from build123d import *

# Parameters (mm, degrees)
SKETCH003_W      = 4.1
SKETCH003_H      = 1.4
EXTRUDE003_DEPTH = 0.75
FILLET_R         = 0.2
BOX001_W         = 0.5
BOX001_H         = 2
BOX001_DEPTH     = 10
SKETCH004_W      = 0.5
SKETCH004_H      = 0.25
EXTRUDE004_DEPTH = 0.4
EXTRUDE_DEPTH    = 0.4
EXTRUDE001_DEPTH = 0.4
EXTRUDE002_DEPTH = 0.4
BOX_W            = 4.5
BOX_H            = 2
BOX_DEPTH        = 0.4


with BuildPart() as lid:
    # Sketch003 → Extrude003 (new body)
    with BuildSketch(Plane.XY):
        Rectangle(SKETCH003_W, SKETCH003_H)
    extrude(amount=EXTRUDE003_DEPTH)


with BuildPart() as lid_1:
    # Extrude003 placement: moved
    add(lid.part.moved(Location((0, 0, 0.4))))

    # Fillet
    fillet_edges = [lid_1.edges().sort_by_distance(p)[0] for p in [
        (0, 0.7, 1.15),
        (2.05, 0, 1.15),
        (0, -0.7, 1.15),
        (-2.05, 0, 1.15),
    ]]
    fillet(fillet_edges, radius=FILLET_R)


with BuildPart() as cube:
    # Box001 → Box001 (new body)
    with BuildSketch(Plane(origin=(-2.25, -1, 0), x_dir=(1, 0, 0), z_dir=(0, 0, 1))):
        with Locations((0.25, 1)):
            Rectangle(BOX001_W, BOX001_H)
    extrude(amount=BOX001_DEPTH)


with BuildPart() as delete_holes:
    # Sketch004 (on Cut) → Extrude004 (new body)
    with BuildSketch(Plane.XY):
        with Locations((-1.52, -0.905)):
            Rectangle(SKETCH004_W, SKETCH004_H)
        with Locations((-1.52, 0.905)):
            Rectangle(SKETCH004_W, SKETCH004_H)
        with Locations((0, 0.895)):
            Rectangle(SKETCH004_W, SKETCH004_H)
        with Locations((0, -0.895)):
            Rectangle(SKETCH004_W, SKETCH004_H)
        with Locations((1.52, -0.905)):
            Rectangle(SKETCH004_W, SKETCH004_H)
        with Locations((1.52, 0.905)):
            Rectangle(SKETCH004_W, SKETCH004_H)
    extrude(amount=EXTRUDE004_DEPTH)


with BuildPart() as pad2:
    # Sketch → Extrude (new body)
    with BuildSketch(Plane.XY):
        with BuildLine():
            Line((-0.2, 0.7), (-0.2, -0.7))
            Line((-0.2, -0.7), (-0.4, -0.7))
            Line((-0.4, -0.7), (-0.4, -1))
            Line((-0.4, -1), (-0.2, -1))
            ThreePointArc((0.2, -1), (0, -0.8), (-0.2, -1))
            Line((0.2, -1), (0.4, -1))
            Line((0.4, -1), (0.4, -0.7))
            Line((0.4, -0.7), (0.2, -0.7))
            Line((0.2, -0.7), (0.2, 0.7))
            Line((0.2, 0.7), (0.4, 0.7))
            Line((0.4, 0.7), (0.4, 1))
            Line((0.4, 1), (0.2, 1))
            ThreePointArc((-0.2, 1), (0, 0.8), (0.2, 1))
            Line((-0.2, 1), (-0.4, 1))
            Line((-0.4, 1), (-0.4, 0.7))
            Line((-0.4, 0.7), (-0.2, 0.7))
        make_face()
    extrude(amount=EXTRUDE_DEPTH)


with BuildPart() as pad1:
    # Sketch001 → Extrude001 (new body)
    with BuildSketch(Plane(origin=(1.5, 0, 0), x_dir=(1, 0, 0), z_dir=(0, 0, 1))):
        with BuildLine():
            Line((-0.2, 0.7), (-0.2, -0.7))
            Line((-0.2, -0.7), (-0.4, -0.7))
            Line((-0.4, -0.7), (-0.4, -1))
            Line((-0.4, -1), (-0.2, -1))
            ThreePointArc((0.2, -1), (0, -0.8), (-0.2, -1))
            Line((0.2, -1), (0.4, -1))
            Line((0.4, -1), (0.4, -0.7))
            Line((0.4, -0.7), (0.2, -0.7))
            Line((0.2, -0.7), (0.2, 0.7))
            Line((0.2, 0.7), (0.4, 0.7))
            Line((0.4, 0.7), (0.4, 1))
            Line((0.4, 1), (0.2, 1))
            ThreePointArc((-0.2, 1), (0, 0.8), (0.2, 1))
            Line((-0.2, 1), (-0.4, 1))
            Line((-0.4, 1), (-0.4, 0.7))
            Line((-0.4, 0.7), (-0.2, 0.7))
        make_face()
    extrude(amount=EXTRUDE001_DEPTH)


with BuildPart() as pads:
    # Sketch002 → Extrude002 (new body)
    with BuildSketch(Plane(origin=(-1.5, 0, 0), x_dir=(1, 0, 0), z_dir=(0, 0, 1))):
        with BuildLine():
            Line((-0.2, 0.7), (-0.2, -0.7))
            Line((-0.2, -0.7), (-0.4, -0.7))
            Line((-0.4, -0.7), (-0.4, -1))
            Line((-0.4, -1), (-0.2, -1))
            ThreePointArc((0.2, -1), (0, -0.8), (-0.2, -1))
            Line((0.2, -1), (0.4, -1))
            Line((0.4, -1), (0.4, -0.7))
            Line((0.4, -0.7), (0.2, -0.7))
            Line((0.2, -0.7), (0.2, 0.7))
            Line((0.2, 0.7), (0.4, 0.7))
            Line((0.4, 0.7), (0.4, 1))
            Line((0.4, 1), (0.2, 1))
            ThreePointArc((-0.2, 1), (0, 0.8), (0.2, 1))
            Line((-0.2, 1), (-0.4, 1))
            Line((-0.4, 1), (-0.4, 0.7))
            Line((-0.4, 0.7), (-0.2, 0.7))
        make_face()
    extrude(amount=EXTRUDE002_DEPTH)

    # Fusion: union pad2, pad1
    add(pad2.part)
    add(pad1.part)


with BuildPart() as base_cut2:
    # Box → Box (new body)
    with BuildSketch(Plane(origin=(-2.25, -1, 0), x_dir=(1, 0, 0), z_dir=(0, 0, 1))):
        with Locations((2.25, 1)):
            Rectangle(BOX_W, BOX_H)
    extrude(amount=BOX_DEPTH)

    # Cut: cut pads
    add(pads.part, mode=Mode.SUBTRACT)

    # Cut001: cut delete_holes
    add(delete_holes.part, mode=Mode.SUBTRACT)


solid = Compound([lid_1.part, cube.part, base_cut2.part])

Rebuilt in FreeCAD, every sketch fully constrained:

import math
import FreeCAD as App
import Part
import Sketcher

V = App.Vector
Q = App.Units.Quantity


def edges_at(feature, points):
    """Names of the edges that pass closest to the given points."""
    edges = feature.Shape.Edges
    near = lambda p: min(range(len(edges)), key=lambda i: edges[i].distToShape(Part.Vertex(*p))[0])
    return sorted({f"Edge{near(p) + 1}" for p in points})


def add_polygon(sketch, points):
    """Adds a closed chain of lines whose ends are joined by coincident constraints."""
    first, n = sketch.GeometryCount, len(points)
    for a, b in zip(points, points[1:] + points[:1]):
        sketch.addGeometry(Part.LineSegment(App.Vector(*a, 0), App.Vector(*b, 0)), False)
    for i in range(n):
        sketch.addConstraint(Sketcher.Constraint("Coincident", first + i, 2, first + (i + 1) % n, 1))

doc = App.newDocument("Part")
params = doc.addObject("Spreadsheet::Sheet", "Params")
for row, (alias, value) in enumerate([
    ("sketch1_width", "4.1 mm"),
    ("sketch1_height", "1.4 mm"),
    ("pad1_length", "0.75 mm"),
    ("fillet_radius", "0.2 mm"),
    ("sketch2_height", "2 mm"),
    ("sketch2_width", "0.5 mm"),
    ("pad2_length", "10 mm"),
    ("sketch3_width", "0.5 mm"),
    ("sketch3_height", "0.25 mm"),
    ("pad3_length", "0.4 mm"),
    ("sketch4_radius", "0.2 mm"),
    ("sketch4_width", "0.2 mm"),
    ("sketch4_height", "1.4 mm"),
    ("sketch4_height2", "0.3 mm"),
    ("pad4_length", "0.4 mm"),
    ("sketch5_radius", "0.2 mm"),
    ("sketch5_width", "0.2 mm"),
    ("sketch5_height", "1.4 mm"),
    ("sketch5_height2", "0.3 mm"),
    ("pad5_length", "0.4 mm"),
    ("sketch6_radius", "0.2 mm"),
    ("sketch6_width", "0.2 mm"),
    ("sketch6_height", "1.4 mm"),
    ("sketch6_height2", "0.3 mm"),
    ("pad6_length", "0.4 mm"),
    ("sketch7_height", "2 mm"),
    ("sketch7_width", "4.5 mm"),
    ("pad7_length", "0.4 mm"),
], start=1):
    params.set(f"A{row}", alias)
    params.set(f"B{row}", "=" + value)
    params.setAlias(f"B{row}", alias)

body = doc.addObject("PartDesign::Body", "Body")

sketch1 = body.newObject("Sketcher::SketchObject", "Sketch")
sketch1.AttachmentSupport = (doc.getObject("XY_Plane"), [""])
sketch1.MapMode = "FlatFace"
add_polygon(sketch1, [(-2.05, 0.7), (-2.05, -0.7), (2.05, -0.7), (2.05, 0.7)])
sketch1.addConstraint([
    Sketcher.Constraint("Vertical", 0),
    Sketcher.Constraint("Horizontal", 1),
    Sketcher.Constraint("Vertical", 2),
    Sketcher.Constraint("Horizontal", 3),
    Sketcher.Constraint("Symmetric", 0, 2, 2, 2, -1, 1),
    Sketcher.Constraint("DistanceX", 1, 1, 1, 2, Q("4.1 mm")),
    Sketcher.Constraint("DistanceY", 0, 2, 0, 1, Q("1.4 mm")),
])
sketch1.setExpression("Constraints[9]", "Params.sketch1_width")
sketch1.setExpression("Constraints[10]", "Params.sketch1_height")
pad1 = body.newObject("PartDesign::Pad", "Pad")
pad1.Profile = sketch1
pad1.setExpression("Length", "Params.pad1_length")
body2 = doc.addObject("PartDesign::Body", "Body001")
doc.recompute()

body.Placement = App.Placement(V(0, 0, 0.4), App.Rotation(V(0, 0, 1), 0))
boolean = body2.newObject("PartDesign::Boolean", "Boolean")
boolean.Type = "Fuse"
boolean.addObjects([body])
doc.recompute()

fillet = body2.newObject("PartDesign::Fillet", "Fillet")
fillet.Base = (boolean, edges_at(boolean, [
    (0, 0.7, 1.15),
    (2.05, 0, 1.15),
    (0, -0.7, 1.15),
    (-2.05, 0, 1.15),
]))
fillet.setExpression("Radius", "Params.fillet_radius")
body3 = doc.addObject("PartDesign::Body", "Body002")

sketch2 = body3.newObject("Sketcher::SketchObject", "Sketch001")
sketch2.AttachmentSupport = (doc.getObject("XY_Plane002"), [""])
sketch2.MapMode = "FlatFace"
add_polygon(sketch2, [(-2.25, 1), (-2.25, -1), (-1.75, -1), (-1.75, 1)])
sketch2.addConstraint([
    Sketcher.Constraint("Vertical", 0),
    Sketcher.Constraint("Horizontal", 1),
    Sketcher.Constraint("Vertical", 2),
    Sketcher.Constraint("Horizontal", 3),
    Sketcher.Constraint("DistanceY", 0, 2, 0, 1, Q("2 mm")),
    Sketcher.Constraint("DistanceX", 1, 1, 1, 2, Q("0.5 mm")),
    Sketcher.Constraint("DistanceY", 0, 2, -1, 1, Q("1 mm")),
    Sketcher.Constraint("DistanceX", 0, 2, -1, 1, Q("2.25 mm")),
])
sketch2.setExpression("Constraints[8]", "Params.sketch2_height")
sketch2.setExpression("Constraints[9]", "Params.sketch2_width")
pad2 = body3.newObject("PartDesign::Pad", "Pad001")
pad2.Profile = sketch2
pad2.setExpression("Length", "Params.pad2_length")
body4 = doc.addObject("PartDesign::Body", "Body003")
body4.AllowCompound = True

sketch3 = body4.newObject("Sketcher::SketchObject", "Sketch002")
sketch3.AttachmentSupport = (doc.getObject("XY_Plane003"), [""])
sketch3.MapMode = "FlatFace"
add_polygon(sketch3, [(-1.77, -0.78), (-1.77, -1.03), (-1.27, -1.03), (-1.27, -0.78)])
add_polygon(sketch3, [(-1.77, 1.03), (-1.77, 0.78), (-1.27, 0.78), (-1.27, 1.03)])
add_polygon(sketch3, [(-0.25, 1.02), (-0.25, 0.77), (0.25, 0.77), (0.25, 1.02)])
add_polygon(sketch3, [(-0.25, -0.77), (-0.25, -1.02), (0.25, -1.02), (0.25, -0.77)])
add_polygon(sketch3, [(1.27, -0.78), (1.27, -1.03), (1.77, -1.03), (1.77, -0.78)])
add_polygon(sketch3, [(1.27, 1.03), (1.27, 0.78), (1.77, 0.78), (1.77, 1.03)])
sketch3.addConstraint([
    Sketcher.Constraint("Vertical", 0),
    Sketcher.Constraint("Horizontal", 1),
    Sketcher.Constraint("Vertical", 2),
    Sketcher.Constraint("Horizontal", 3),
    Sketcher.Constraint("Vertical", 4),
    Sketcher.Constraint("Horizontal", 5),
    Sketcher.Constraint("Vertical", 6),
    Sketcher.Constraint("Horizontal", 7),
    Sketcher.Constraint("Vertical", 8),
    Sketcher.Constraint("Horizontal", 9),
    Sketcher.Constraint("Vertical", 10),
    Sketcher.Constraint("Horizontal", 11),
    Sketcher.Constraint("Vertical", 12),
    Sketcher.Constraint("Horizontal", 13),
    Sketcher.Constraint("Vertical", 14),
    Sketcher.Constraint("Horizontal", 15),
    Sketcher.Constraint("Vertical", 16),
    Sketcher.Constraint("Horizontal", 17),
    Sketcher.Constraint("Vertical", 18),
    Sketcher.Constraint("Horizontal", 19),
    Sketcher.Constraint("Vertical", 20),
    Sketcher.Constraint("Horizontal", 21),
    Sketcher.Constraint("Vertical", 22),
    Sketcher.Constraint("Horizontal", 23),
    Sketcher.Constraint("Symmetric", 10, 2, 12, 2, -1, 1),
    Sketcher.Constraint("Symmetric", 8, 2, 14, 2, -1, 1),
    Sketcher.Constraint("Symmetric", 6, 2, 16, 2, -1, 1),
    Sketcher.Constraint("Symmetric", 4, 2, 18, 2, -1, 1),
    Sketcher.Constraint("Symmetric", 2, 2, 20, 2, -1, 1),
    Sketcher.Constraint("Symmetric", 0, 2, 22, 2, -1, 1),
    Sketcher.Constraint("Symmetric", 1, 2, 16, 2, -2),
    Sketcher.Constraint("Symmetric", 3, 2, 18, 2, -2),
    Sketcher.Constraint("Vertical", 11, 2, 12, 2),
    Sketcher.Constraint("Equal", 7, 9),
    Sketcher.Constraint("Equal", 6, 8),
    Sketcher.Constraint("DistanceX", 1, 1, 1, 2, Q("0.5 mm")),
    Sketcher.Constraint("DistanceY", 0, 2, 0, 1, Q("0.25 mm")),
    Sketcher.Constraint("DistanceY", 16, 2, 9, 2, Q("1.8 mm")),
    Sketcher.Constraint("DistanceX", 0, 2, -1, 1, Q("1.77 mm")),
    Sketcher.Constraint("DistanceY", 0, 2, -1, 1, Q("1.03 mm")),
])
sketch3.setExpression("Constraints[59]", "Params.sketch3_width")
sketch3.setExpression("Constraints[60]", "Params.sketch3_height")
pad3 = body4.newObject("PartDesign::Pad", "Pad002")
pad3.Profile = sketch3
pad3.setExpression("Length", "Params.pad3_length")
body5 = doc.addObject("PartDesign::Body", "Body004")

sketch4 = body5.newObject("Sketcher::SketchObject", "Sketch003")
sketch4.AttachmentSupport = (doc.getObject("XY_Plane004"), [""])
sketch4.MapMode = "FlatFace"
sketch4.addGeometry([
    Part.LineSegment(V(-0.2, 0.7, 0), V(-0.2, -0.7, 0)),
    Part.LineSegment(V(-0.2, -0.7, 0), V(-0.4, -0.7, 0)),
    Part.LineSegment(V(-0.4, -0.7, 0), V(-0.4, -1, 0)),
    Part.LineSegment(V(-0.4, -1, 0), V(-0.2, -1, 0)),
    Part.ArcOfCircle(Part.Circle(V(0, -1, 0), V(0, 0, 1), 0.2), math.radians(0), math.radians(180)),
    Part.LineSegment(V(0.2, -1, 0), V(0.4, -1, 0)),
    Part.LineSegment(V(0.4, -1, 0), V(0.4, -0.7, 0)),
    Part.LineSegment(V(0.4, -0.7, 0), V(0.2, -0.7, 0)),
    Part.LineSegment(V(0.2, -0.7, 0), V(0.2, 0.7, 0)),
    Part.LineSegment(V(0.2, 0.7, 0), V(0.4, 0.7, 0)),
    Part.LineSegment(V(0.4, 0.7, 0), V(0.4, 1, 0)),
    Part.LineSegment(V(0.4, 1, 0), V(0.2, 1, 0)),
    Part.ArcOfCircle(Part.Circle(V(0, 1, 0), V(0, 0, 1), 0.2), math.radians(180), math.radians(360)),
    Part.LineSegment(V(-0.2, 1, 0), V(-0.4, 1, 0)),
    Part.LineSegment(V(-0.4, 1, 0), V(-0.4, 0.7, 0)),
    Part.LineSegment(V(-0.4, 0.7, 0), V(-0.2, 0.7, 0)),
], False)
sketch4.addConstraint([
    Sketcher.Constraint("Coincident", 0, 2, 1, 1),
    Sketcher.Constraint("Coincident", 1, 2, 2, 1),
    Sketcher.Constraint("Coincident", 2, 2, 3, 1),
    Sketcher.Constraint("Coincident", 3, 2, 4, 2),
    Sketcher.Constraint("Coincident", 4, 1, 5, 1),
    Sketcher.Constraint("Coincident", 5, 2, 6, 1),
    Sketcher.Constraint("Coincident", 6, 2, 7, 1),
    Sketcher.Constraint("Coincident", 7, 2, 8, 1),
    Sketcher.Constraint("Coincident", 8, 2, 9, 1),
    Sketcher.Constraint("Coincident", 9, 2, 10, 1),
    Sketcher.Constraint("Coincident", 10, 2, 11, 1),
    Sketcher.Constraint("Coincident", 11, 2, 12, 2),
    Sketcher.Constraint("Coincident", 12, 1, 13, 1),
    Sketcher.Constraint("Coincident", 13, 2, 14, 1),
    Sketcher.Constraint("Coincident", 14, 2, 15, 1),
    Sketcher.Constraint("Coincident", 15, 2, 0, 1),
    Sketcher.Constraint("Vertical", 0),
    Sketcher.Constraint("Horizontal", 1),
    Sketcher.Constraint("Vertical", 2),
    Sketcher.Constraint("Horizontal", 3),
    Sketcher.Constraint("Horizontal", 5),
    Sketcher.Constraint("Vertical", 6),
    Sketcher.Constraint("Horizontal", 7),
    Sketcher.Constraint("Vertical", 8),
    Sketcher.Constraint("Horizontal", 9),
    Sketcher.Constraint("Vertical", 10),
    Sketcher.Constraint("Horizontal", 11),
    Sketcher.Constraint("Horizontal", 13),
    Sketcher.Constraint("Vertical", 14),
    Sketcher.Constraint("Horizontal", 15),
    Sketcher.Constraint("Equal", 4, 12),
    Sketcher.Constraint("Symmetric", 4, 3, 12, 3, -1, 1),
    Sketcher.Constraint("Symmetric", 0, 2, 8, 2, -1, 1),
    Sketcher.Constraint("Symmetric", 2, 2, 10, 2, -1, 1),
    Sketcher.Constraint("Symmetric", 5, 2, 13, 2, -1, 1),
    Sketcher.Constraint("Symmetric", 3, 2, 4, 1, -2),
    Sketcher.Constraint("Symmetric", 1, 2, 6, 2, -2),
    Sketcher.Constraint("Horizontal", 4, 3, 2, 2),
    Sketcher.Constraint("Horizontal", 9, 2, 14, 2),
    Sketcher.Constraint("Vertical", 0, 2, 3, 2),
    Sketcher.Constraint("Radius", 4, Q("0.2 mm")),
    Sketcher.Constraint("DistanceX", 1, 2, 1, 1, Q("0.2 mm")),
    Sketcher.Constraint("DistanceY", 0, 2, 0, 1, Q("1.4 mm")),
    Sketcher.Constraint("DistanceY", 2, 2, 2, 1, Q("0.3 mm")),
])
sketch4.setExpression("Constraints[40]", "Params.sketch4_radius")
sketch4.setExpression("Constraints[41]", "Params.sketch4_width")
sketch4.setExpression("Constraints[42]", "Params.sketch4_height")
sketch4.setExpression("Constraints[43]", "Params.sketch4_height2")
pad4 = body5.newObject("PartDesign::Pad", "Pad003")
pad4.Profile = sketch4
pad4.setExpression("Length", "Params.pad4_length")
body6 = doc.addObject("PartDesign::Body", "Body005")

sketch5 = body6.newObject("Sketcher::SketchObject", "Sketch004")
sketch5.AttachmentSupport = (doc.getObject("XY_Plane005"), [""])
sketch5.MapMode = "FlatFace"
sketch5.addGeometry([
    Part.LineSegment(V(1.3, 0.7, 0), V(1.3, -0.7, 0)),
    Part.LineSegment(V(1.3, -0.7, 0), V(1.1, -0.7, 0)),
    Part.LineSegment(V(1.1, -0.7, 0), V(1.1, -1, 0)),
    Part.LineSegment(V(1.1, -1, 0), V(1.3, -1, 0)),
    Part.ArcOfCircle(Part.Circle(V(1.5, -1, 0), V(0, 0, 1), 0.2), math.radians(0), math.radians(180)),
    Part.LineSegment(V(1.7, -1, 0), V(1.9, -1, 0)),
    Part.LineSegment(V(1.9, -1, 0), V(1.9, -0.7, 0)),
    Part.LineSegment(V(1.9, -0.7, 0), V(1.7, -0.7, 0)),
    Part.LineSegment(V(1.7, -0.7, 0), V(1.7, 0.7, 0)),
    Part.LineSegment(V(1.7, 0.7, 0), V(1.9, 0.7, 0)),
    Part.LineSegment(V(1.9, 0.7, 0), V(1.9, 1, 0)),
    Part.LineSegment(V(1.9, 1, 0), V(1.7, 1, 0)),
    Part.ArcOfCircle(Part.Circle(V(1.5, 1, 0), V(0, 0, 1), 0.2), math.radians(180), math.radians(360)),
    Part.LineSegment(V(1.3, 1, 0), V(1.1, 1, 0)),
    Part.LineSegment(V(1.1, 1, 0), V(1.1, 0.7, 0)),
    Part.LineSegment(V(1.1, 0.7, 0), V(1.3, 0.7, 0)),
], False)
sketch5.addConstraint([
    Sketcher.Constraint("Coincident", 0, 2, 1, 1),
    Sketcher.Constraint("Coincident", 1, 2, 2, 1),
    Sketcher.Constraint("Coincident", 2, 2, 3, 1),
    Sketcher.Constraint("Coincident", 3, 2, 4, 2),
    Sketcher.Constraint("Coincident", 4, 1, 5, 1),
    Sketcher.Constraint("Coincident", 5, 2, 6, 1),
    Sketcher.Constraint("Coincident", 6, 2, 7, 1),
    Sketcher.Constraint("Coincident", 7, 2, 8, 1),
    Sketcher.Constraint("Coincident", 8, 2, 9, 1),
    Sketcher.Constraint("Coincident", 9, 2, 10, 1),
    Sketcher.Constraint("Coincident", 10, 2, 11, 1),
    Sketcher.Constraint("Coincident", 11, 2, 12, 2),
    Sketcher.Constraint("Coincident", 12, 1, 13, 1),
    Sketcher.Constraint("Coincident", 13, 2, 14, 1),
    Sketcher.Constraint("Coincident", 14, 2, 15, 1),
    Sketcher.Constraint("Coincident", 15, 2, 0, 1),
    Sketcher.Constraint("Vertical", 0),
    Sketcher.Constraint("Horizontal", 1),
    Sketcher.Constraint("Vertical", 2),
    Sketcher.Constraint("Horizontal", 3),
    Sketcher.Constraint("Horizontal", 5),
    Sketcher.Constraint("Vertical", 6),
    Sketcher.Constraint("Horizontal", 7),
    Sketcher.Constraint("Vertical", 8),
    Sketcher.Constraint("Horizontal", 9),
    Sketcher.Constraint("Vertical", 10),
    Sketcher.Constraint("Horizontal", 11),
    Sketcher.Constraint("Horizontal", 13),
    Sketcher.Constraint("Vertical", 14),
    Sketcher.Constraint("Horizontal", 15),
    Sketcher.Constraint("Equal", 4, 12),
    Sketcher.Constraint("Symmetric", 4, 3, 12, 3, -1),
    Sketcher.Constraint("Symmetric", 6, 2, 9, 2, -1),
    Sketcher.Constraint("Symmetric", 2, 2, 13, 2, -1),
    Sketcher.Constraint("Horizontal", 4, 3, 2, 2),
    Sketcher.Constraint("Horizontal", 3, 2, 4, 1),
    Sketcher.Constraint("Horizontal", 1, 2, 6, 2),
    Sketcher.Constraint("Horizontal", 12, 3, 10, 2),
    Sketcher.Constraint("Horizontal", 9, 2, 14, 2),
    Sketcher.Constraint("Vertical", 0, 2, 3, 2),
    Sketcher.Constraint("Vertical", 4, 1, 7, 2),
    Sketcher.Constraint("Equal", 3, 5),
    Sketcher.Constraint("Radius", 4, Q("0.2 mm")),
    Sketcher.Constraint("DistanceX", 1, 2, 1, 1, Q("0.2 mm")),
    Sketcher.Constraint("DistanceY", 0, 2, 0, 1, Q("1.4 mm")),
    Sketcher.Constraint("DistanceY", 2, 2, 2, 1, Q("0.3 mm")),
    Sketcher.Constraint("DistanceX", -1, 1, 4, 3, Q("1.5 mm")),
])
sketch5.setExpression("Constraints[42]", "Params.sketch5_radius")
sketch5.setExpression("Constraints[43]", "Params.sketch5_width")
sketch5.setExpression("Constraints[44]", "Params.sketch5_height")
sketch5.setExpression("Constraints[45]", "Params.sketch5_height2")
pad5 = body6.newObject("PartDesign::Pad", "Pad004")
pad5.Profile = sketch5
pad5.setExpression("Length", "Params.pad5_length")
body7 = doc.addObject("PartDesign::Body", "Body006")
body7.AllowCompound = True

sketch6 = body7.newObject("Sketcher::SketchObject", "Sketch005")
sketch6.AttachmentSupport = (doc.getObject("XY_Plane006"), [""])
sketch6.MapMode = "FlatFace"
sketch6.addGeometry([
    Part.LineSegment(V(-1.7, 0.7, 0), V(-1.7, -0.7, 0)),
    Part.LineSegment(V(-1.7, -0.7, 0), V(-1.9, -0.7, 0)),
    Part.LineSegment(V(-1.9, -0.7, 0), V(-1.9, -1, 0)),
    Part.LineSegment(V(-1.9, -1, 0), V(-1.7, -1, 0)),
    Part.ArcOfCircle(Part.Circle(V(-1.5, -1, 0), V(0, 0, 1), 0.2), math.radians(0), math.radians(180)),
    Part.LineSegment(V(-1.3, -1, 0), V(-1.1, -1, 0)),
    Part.LineSegment(V(-1.1, -1, 0), V(-1.1, -0.7, 0)),
    Part.LineSegment(V(-1.1, -0.7, 0), V(-1.3, -0.7, 0)),
    Part.LineSegment(V(-1.3, -0.7, 0), V(-1.3, 0.7, 0)),
    Part.LineSegment(V(-1.3, 0.7, 0), V(-1.1, 0.7, 0)),
    Part.LineSegment(V(-1.1, 0.7, 0), V(-1.1, 1, 0)),
    Part.LineSegment(V(-1.1, 1, 0), V(-1.3, 1, 0)),
    Part.ArcOfCircle(Part.Circle(V(-1.5, 1, 0), V(0, 0, 1), 0.2), math.radians(180), math.radians(360)),
    Part.LineSegment(V(-1.7, 1, 0), V(-1.9, 1, 0)),
    Part.LineSegment(V(-1.9, 1, 0), V(-1.9, 0.7, 0)),
    Part.LineSegment(V(-1.9, 0.7, 0), V(-1.7, 0.7, 0)),
], False)
sketch6.addConstraint([
    Sketcher.Constraint("Coincident", 0, 2, 1, 1),
    Sketcher.Constraint("Coincident", 1, 2, 2, 1),
    Sketcher.Constraint("Coincident", 2, 2, 3, 1),
    Sketcher.Constraint("Coincident", 3, 2, 4, 2),
    Sketcher.Constraint("Coincident", 4, 1, 5, 1),
    Sketcher.Constraint("Coincident", 5, 2, 6, 1),
    Sketcher.Constraint("Coincident", 6, 2, 7, 1),
    Sketcher.Constraint("Coincident", 7, 2, 8, 1),
    Sketcher.Constraint("Coincident", 8, 2, 9, 1),
    Sketcher.Constraint("Coincident", 9, 2, 10, 1),
    Sketcher.Constraint("Coincident", 10, 2, 11, 1),
    Sketcher.Constraint("Coincident", 11, 2, 12, 2),
    Sketcher.Constraint("Coincident", 12, 1, 13, 1),
    Sketcher.Constraint("Coincident", 13, 2, 14, 1),
    Sketcher.Constraint("Coincident", 14, 2, 15, 1),
    Sketcher.Constraint("Coincident", 15, 2, 0, 1),
    Sketcher.Constraint("Vertical", 0),
    Sketcher.Constraint("Horizontal", 1),
    Sketcher.Constraint("Vertical", 2),
    Sketcher.Constraint("Horizontal", 3),
    Sketcher.Constraint("Horizontal", 5),
    Sketcher.Constraint("Vertical", 6),
    Sketcher.Constraint("Horizontal", 7),
    Sketcher.Constraint("Vertical", 8),
    Sketcher.Constraint("Horizontal", 9),
    Sketcher.Constraint("Vertical", 10),
    Sketcher.Constraint("Horizontal", 11),
    Sketcher.Constraint("Horizontal", 13),
    Sketcher.Constraint("Vertical", 14),
    Sketcher.Constraint("Horizontal", 15),
    Sketcher.Constraint("Equal", 4, 12),
    Sketcher.Constraint("Symmetric", 4, 3, 12, 3, -1),
    Sketcher.Constraint("Symmetric", 6, 2, 9, 2, -1),
    Sketcher.Constraint("Symmetric", 2, 2, 13, 2, -1),
    Sketcher.Constraint("Horizontal", 4, 3, 2, 2),
    Sketcher.Constraint("Horizontal", 3, 2, 4, 1),
    Sketcher.Constraint("Horizontal", 1, 2, 6, 2),
    Sketcher.Constraint("Horizontal", 12, 3, 10, 2),
    Sketcher.Constraint("Horizontal", 9, 2, 14, 2),
    Sketcher.Constraint("Vertical", 0, 2, 3, 2),
    Sketcher.Constraint("Vertical", 4, 1, 7, 2),
    Sketcher.Constraint("Equal", 3, 5),
    Sketcher.Constraint("Radius", 4, Q("0.2 mm")),
    Sketcher.Constraint("DistanceX", 1, 2, 1, 1, Q("0.2 mm")),
    Sketcher.Constraint("DistanceY", 0, 2, 0, 1, Q("1.4 mm")),
    Sketcher.Constraint("DistanceY", 2, 2, 2, 1, Q("0.3 mm")),
    Sketcher.Constraint("DistanceX", 4, 3, -1, 1, Q("1.5 mm")),
])
sketch6.setExpression("Constraints[42]", "Params.sketch6_radius")
sketch6.setExpression("Constraints[43]", "Params.sketch6_width")
sketch6.setExpression("Constraints[44]", "Params.sketch6_height")
sketch6.setExpression("Constraints[45]", "Params.sketch6_height2")
pad6 = body7.newObject("PartDesign::Pad", "Pad005")
pad6.Profile = sketch6
pad6.setExpression("Length", "Params.pad6_length")
doc.recompute()

boolean2 = body7.newObject("PartDesign::Boolean", "Boolean001")
boolean2.Type = "Fuse"
boolean2.addObjects([body5])
doc.recompute()

boolean3 = body7.newObject("PartDesign::Boolean", "Boolean002")
boolean3.Type = "Fuse"
boolean3.addObjects([body6])
body8 = doc.addObject("PartDesign::Body", "Body007")
body8.AllowCompound = True

sketch7 = body8.newObject("Sketcher::SketchObject", "Sketch006")
sketch7.AttachmentSupport = (doc.getObject("XY_Plane007"), [""])
sketch7.MapMode = "FlatFace"
add_polygon(sketch7, [(-2.25, 1), (-2.25, -1), (2.25, -1), (2.25, 1)])
sketch7.addConstraint([
    Sketcher.Constraint("Vertical", 0),
    Sketcher.Constraint("Horizontal", 1),
    Sketcher.Constraint("Vertical", 2),
    Sketcher.Constraint("Horizontal", 3),
    Sketcher.Constraint("Symmetric", 0, 2, 2, 2, -1, 1),
    Sketcher.Constraint("DistanceY", 0, 2, 0, 1, Q("2 mm")),
    Sketcher.Constraint("DistanceX", 1, 1, 1, 2, Q("4.5 mm")),
])
sketch7.setExpression("Constraints[9]", "Params.sketch7_height")
sketch7.setExpression("Constraints[10]", "Params.sketch7_width")
pad7 = body8.newObject("PartDesign::Pad", "Pad006")
pad7.Profile = sketch7
pad7.setExpression("Length", "Params.pad7_length")
doc.recompute()

boolean4 = body8.newObject("PartDesign::Boolean", "Boolean003")
boolean4.Type = "Cut"
boolean4.addObjects([body7])
doc.recompute()

boolean5 = body8.newObject("PartDesign::Boolean", "Boolean004")
boolean5.Type = "Cut"
boolean5.addObjects([body4])

doc.recompute()
